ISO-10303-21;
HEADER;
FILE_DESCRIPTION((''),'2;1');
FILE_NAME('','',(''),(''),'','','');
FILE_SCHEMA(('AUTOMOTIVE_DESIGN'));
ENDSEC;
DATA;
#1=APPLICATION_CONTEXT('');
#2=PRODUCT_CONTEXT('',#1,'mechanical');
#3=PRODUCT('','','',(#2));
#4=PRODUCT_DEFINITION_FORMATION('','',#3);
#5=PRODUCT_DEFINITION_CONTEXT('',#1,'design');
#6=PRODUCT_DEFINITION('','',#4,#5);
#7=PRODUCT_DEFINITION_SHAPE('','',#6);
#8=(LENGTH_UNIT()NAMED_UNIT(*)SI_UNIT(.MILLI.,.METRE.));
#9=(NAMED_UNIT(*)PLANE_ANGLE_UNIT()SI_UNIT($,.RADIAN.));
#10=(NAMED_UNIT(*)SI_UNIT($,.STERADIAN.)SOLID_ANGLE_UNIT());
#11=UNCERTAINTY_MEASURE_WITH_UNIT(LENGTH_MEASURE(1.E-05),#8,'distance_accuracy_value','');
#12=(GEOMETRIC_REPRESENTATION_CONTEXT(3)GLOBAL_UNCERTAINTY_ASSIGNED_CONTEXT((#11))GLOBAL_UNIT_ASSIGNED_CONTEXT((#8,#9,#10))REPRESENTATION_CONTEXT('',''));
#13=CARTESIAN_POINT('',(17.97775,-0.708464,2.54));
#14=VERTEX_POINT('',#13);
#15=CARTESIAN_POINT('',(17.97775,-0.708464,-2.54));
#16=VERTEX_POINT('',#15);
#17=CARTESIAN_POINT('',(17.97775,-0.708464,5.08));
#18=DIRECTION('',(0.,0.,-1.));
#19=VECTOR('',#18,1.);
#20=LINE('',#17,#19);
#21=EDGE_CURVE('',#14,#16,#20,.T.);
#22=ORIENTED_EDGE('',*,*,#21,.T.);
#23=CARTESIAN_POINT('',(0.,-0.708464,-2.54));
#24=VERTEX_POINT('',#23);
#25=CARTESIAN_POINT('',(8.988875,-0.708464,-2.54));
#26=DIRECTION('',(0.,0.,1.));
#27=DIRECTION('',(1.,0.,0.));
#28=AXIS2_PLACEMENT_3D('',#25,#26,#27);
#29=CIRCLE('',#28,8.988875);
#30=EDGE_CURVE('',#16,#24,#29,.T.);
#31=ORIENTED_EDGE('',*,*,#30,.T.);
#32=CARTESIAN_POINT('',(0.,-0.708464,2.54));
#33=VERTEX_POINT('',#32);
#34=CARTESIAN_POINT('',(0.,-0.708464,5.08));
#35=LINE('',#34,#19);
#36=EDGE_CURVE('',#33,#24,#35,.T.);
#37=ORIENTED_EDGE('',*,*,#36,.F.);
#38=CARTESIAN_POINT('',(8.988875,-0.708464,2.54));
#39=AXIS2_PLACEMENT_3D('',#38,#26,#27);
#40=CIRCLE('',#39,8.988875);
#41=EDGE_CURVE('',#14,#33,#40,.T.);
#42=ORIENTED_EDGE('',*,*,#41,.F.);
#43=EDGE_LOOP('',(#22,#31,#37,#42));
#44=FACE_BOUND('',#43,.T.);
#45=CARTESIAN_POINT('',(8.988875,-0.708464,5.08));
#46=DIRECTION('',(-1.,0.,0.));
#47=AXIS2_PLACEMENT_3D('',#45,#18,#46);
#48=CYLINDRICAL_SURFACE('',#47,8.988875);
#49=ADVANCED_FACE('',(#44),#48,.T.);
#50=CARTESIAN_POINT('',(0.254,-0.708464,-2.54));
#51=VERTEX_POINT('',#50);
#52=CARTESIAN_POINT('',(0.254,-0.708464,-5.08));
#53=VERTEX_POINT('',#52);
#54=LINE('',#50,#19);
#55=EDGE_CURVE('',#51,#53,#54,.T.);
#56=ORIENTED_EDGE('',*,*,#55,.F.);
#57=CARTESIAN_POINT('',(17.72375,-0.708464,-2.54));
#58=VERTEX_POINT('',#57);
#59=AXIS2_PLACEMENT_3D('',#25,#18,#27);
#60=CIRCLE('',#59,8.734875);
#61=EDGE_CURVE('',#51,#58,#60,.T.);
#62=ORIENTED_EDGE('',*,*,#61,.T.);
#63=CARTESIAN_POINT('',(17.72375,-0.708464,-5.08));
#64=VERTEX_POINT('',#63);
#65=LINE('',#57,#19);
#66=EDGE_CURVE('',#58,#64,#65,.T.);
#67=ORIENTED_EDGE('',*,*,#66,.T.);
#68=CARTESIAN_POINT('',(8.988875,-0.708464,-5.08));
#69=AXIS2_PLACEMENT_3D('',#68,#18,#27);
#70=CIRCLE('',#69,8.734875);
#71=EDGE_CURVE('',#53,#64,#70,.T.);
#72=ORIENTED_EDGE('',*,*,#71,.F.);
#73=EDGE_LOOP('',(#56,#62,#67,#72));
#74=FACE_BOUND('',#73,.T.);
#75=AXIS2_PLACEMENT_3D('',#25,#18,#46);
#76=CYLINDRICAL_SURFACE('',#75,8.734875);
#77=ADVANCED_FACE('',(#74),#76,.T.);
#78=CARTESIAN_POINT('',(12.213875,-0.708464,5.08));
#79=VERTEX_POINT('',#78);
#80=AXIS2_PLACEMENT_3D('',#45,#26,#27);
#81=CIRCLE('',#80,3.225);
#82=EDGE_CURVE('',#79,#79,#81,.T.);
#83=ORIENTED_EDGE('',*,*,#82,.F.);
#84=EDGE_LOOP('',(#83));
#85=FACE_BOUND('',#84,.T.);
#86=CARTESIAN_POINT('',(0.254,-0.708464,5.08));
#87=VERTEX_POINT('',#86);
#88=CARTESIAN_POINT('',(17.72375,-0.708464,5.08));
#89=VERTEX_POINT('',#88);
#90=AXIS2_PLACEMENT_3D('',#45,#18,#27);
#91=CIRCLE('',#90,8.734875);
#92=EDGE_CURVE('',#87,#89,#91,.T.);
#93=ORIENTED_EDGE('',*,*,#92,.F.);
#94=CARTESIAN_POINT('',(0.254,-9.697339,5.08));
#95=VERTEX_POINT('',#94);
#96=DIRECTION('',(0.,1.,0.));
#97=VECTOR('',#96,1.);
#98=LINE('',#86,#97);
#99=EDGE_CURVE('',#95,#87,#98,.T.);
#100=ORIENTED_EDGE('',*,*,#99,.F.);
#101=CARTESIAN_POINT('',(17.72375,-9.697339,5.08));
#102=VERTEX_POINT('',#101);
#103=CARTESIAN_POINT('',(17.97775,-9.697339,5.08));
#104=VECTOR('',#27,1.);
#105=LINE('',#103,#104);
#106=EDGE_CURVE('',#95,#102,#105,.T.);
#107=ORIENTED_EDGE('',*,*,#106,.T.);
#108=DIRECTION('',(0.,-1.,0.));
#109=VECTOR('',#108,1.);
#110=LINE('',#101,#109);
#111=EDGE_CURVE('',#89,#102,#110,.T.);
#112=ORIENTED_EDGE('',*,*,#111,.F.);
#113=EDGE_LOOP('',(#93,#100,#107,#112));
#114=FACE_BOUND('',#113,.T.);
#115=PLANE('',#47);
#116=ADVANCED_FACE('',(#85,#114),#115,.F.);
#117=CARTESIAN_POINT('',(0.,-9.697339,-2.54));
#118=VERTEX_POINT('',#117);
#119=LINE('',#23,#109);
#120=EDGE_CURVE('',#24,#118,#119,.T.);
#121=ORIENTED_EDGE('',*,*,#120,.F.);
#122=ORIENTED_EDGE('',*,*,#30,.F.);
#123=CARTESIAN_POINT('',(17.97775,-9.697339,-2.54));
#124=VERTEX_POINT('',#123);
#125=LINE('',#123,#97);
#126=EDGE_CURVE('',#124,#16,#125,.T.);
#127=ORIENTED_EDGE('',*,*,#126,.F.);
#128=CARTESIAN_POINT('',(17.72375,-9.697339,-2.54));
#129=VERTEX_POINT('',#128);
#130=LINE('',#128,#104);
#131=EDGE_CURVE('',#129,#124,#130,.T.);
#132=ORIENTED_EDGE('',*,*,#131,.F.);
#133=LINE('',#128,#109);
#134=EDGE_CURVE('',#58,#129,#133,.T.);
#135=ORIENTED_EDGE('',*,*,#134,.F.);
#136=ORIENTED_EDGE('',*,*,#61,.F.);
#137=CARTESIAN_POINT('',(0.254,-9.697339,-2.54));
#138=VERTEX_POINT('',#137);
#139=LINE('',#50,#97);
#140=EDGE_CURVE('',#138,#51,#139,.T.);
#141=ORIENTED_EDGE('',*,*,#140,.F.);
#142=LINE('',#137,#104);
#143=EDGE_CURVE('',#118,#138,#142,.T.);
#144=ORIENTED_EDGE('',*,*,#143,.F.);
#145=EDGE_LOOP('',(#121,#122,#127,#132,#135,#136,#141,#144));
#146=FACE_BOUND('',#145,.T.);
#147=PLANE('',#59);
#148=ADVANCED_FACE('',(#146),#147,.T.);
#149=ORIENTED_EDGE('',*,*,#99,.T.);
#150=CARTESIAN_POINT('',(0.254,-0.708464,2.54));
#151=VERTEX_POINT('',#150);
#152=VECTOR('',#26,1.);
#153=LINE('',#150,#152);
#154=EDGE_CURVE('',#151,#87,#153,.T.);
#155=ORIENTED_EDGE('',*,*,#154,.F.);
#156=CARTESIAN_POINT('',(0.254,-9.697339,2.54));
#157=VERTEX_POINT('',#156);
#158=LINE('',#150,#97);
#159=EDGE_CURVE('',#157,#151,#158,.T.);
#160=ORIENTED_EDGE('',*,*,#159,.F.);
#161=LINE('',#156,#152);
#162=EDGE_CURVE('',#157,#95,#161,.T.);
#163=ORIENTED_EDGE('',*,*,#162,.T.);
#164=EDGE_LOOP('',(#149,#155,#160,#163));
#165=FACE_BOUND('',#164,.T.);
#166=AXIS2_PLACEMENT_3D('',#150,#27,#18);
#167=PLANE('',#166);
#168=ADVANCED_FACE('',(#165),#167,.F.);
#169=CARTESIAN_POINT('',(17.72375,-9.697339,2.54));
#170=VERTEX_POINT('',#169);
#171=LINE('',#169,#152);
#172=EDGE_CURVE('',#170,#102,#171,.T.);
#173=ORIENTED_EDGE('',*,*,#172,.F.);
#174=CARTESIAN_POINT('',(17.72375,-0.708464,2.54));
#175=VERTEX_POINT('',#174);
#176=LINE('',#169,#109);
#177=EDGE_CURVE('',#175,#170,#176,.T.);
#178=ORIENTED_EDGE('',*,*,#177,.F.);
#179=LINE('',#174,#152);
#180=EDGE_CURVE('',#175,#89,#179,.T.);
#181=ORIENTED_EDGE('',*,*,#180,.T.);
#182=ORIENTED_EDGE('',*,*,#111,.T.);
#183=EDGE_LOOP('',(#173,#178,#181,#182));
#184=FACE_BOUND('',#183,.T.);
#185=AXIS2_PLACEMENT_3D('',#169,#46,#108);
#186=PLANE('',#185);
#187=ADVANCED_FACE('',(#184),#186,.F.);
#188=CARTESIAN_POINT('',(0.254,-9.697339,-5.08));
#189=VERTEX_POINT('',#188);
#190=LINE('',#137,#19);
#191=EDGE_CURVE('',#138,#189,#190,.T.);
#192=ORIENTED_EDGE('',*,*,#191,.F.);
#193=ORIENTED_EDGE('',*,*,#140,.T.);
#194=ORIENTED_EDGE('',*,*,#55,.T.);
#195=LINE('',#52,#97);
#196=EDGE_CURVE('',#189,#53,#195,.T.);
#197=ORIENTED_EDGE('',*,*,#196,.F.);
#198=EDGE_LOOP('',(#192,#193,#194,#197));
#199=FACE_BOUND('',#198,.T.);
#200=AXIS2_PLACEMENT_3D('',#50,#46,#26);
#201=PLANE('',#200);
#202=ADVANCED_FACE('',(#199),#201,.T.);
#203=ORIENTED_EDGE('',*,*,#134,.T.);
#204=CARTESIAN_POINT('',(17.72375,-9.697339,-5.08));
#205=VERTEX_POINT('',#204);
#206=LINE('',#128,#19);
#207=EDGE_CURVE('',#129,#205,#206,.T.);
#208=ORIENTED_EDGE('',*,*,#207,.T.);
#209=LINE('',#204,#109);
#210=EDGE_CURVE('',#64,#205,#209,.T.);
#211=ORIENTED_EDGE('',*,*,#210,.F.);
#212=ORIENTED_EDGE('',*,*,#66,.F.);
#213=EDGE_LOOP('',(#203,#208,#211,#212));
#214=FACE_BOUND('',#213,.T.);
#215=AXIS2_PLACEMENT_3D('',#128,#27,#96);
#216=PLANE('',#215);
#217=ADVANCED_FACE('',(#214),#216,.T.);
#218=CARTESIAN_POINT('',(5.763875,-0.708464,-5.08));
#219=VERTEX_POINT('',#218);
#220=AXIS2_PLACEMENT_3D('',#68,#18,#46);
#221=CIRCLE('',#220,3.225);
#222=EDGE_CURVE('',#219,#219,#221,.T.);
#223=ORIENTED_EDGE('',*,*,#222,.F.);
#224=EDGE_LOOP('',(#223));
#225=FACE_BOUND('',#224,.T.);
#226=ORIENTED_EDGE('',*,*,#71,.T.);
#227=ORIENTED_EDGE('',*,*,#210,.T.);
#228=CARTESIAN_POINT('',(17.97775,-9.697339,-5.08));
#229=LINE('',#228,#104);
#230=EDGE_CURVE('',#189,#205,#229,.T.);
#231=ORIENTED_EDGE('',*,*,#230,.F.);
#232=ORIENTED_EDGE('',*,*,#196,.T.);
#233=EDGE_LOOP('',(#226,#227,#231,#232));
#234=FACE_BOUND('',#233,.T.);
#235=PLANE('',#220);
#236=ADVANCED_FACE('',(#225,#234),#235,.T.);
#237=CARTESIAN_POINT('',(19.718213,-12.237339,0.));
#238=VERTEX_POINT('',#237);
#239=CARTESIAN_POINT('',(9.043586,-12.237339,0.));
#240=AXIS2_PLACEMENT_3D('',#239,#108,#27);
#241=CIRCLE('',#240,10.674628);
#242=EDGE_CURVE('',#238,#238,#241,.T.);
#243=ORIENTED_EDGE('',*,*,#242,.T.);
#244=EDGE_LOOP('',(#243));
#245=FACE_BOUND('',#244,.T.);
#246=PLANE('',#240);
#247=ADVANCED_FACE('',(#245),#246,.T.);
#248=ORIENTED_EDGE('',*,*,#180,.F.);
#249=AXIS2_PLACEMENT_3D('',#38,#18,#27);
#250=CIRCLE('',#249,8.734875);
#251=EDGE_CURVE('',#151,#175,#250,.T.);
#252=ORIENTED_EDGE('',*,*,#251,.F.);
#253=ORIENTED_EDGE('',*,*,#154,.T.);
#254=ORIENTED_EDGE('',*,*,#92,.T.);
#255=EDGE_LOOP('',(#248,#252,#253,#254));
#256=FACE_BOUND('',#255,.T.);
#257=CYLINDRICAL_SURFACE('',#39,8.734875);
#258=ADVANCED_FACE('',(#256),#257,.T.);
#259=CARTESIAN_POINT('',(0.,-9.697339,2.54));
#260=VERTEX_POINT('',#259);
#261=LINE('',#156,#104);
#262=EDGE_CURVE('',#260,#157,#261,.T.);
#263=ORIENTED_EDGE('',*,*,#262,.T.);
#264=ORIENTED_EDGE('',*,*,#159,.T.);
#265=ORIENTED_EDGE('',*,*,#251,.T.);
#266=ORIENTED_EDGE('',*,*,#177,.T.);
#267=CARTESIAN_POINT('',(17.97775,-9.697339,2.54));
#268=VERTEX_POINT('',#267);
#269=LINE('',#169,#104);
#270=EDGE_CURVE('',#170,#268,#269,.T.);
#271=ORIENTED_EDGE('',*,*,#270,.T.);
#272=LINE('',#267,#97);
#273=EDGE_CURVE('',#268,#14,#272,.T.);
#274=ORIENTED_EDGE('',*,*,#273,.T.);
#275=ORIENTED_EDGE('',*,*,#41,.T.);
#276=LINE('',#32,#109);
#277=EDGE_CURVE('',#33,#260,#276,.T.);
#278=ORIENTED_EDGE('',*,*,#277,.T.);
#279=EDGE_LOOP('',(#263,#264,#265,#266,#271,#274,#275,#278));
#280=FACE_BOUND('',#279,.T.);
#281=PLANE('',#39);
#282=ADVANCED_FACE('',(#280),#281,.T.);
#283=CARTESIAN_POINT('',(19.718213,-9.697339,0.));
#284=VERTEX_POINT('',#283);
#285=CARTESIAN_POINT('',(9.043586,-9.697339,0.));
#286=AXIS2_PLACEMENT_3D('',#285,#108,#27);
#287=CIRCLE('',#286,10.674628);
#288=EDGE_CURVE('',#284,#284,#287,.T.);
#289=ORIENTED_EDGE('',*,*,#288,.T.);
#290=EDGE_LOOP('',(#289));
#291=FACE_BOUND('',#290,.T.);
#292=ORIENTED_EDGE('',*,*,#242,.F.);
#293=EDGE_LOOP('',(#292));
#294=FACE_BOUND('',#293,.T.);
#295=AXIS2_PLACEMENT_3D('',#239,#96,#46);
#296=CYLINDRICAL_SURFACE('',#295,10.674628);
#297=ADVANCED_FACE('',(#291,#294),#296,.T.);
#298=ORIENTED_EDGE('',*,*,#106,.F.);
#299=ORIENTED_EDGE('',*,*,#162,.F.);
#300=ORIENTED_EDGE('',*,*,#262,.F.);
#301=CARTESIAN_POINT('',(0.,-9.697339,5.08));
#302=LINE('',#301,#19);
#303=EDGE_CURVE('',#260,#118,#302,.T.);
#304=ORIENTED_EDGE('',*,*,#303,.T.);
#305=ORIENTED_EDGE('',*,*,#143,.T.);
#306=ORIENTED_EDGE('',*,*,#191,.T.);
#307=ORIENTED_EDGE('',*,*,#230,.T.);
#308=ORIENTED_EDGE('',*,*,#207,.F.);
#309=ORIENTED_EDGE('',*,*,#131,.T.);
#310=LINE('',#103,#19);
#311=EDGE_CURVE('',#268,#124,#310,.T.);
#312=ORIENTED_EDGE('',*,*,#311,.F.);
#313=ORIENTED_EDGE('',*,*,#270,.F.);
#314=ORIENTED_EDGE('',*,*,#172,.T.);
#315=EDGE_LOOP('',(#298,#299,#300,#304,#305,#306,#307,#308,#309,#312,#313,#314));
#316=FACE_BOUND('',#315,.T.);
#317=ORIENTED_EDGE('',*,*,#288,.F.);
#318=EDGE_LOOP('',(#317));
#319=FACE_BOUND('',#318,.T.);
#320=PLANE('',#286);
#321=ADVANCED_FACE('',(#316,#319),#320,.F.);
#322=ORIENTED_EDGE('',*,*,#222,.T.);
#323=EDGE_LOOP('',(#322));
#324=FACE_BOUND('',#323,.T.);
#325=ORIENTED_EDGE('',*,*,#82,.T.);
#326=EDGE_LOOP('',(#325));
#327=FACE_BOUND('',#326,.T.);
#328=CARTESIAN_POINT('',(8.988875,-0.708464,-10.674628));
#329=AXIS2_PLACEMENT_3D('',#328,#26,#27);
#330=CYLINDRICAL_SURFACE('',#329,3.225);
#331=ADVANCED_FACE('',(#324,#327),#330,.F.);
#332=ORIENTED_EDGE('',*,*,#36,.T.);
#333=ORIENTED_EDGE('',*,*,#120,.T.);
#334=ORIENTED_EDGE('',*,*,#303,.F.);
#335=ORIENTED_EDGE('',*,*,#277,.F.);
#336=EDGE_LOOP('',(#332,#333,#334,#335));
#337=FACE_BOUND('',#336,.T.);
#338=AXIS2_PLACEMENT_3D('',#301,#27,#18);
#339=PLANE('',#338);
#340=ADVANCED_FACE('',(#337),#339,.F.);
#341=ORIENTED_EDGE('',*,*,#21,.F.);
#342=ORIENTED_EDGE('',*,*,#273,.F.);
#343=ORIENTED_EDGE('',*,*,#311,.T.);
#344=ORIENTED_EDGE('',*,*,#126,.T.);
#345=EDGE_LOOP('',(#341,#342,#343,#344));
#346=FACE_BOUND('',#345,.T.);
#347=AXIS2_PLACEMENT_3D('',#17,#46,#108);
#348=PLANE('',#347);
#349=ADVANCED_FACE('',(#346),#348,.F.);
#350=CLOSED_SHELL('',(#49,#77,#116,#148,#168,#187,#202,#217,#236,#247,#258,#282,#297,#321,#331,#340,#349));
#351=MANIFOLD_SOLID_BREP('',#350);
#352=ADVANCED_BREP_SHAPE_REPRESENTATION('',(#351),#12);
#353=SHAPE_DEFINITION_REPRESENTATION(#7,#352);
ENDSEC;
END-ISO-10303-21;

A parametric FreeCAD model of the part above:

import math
import FreeCAD as App
import Part
import Sketcher
from FreeCAD import Vector
Q = App.Units.Quantity

doc = App.newDocument("Part")
params = doc.addObject("Spreadsheet::Sheet", "Params")
for row, (alias, value) in enumerate([
    ("pad1_length", "0.4 in"),
    ("pad2_length", "0.1 in"),
    ("sketch4_width", "0.01 in"),
    ("pocket2_length", "0.1 in"),
], start=1):
    params.set(f"A{row}", alias)
    params.set(f"B{row}", "=" + value)
    params.setAlias(f"B{row}", alias)

body = doc.addObject("PartDesign::Body", "Body")

# Sketch on XY plane
sketch1 = body.newObject("Sketcher::SketchObject", "Sketch")
sketch1.AttachmentSupport = (doc.getObject("XY_Plane"), [""])
sketch1.MapMode = "FlatFace"
sketch1.addGeometry([
    Part.LineSegment(Vector(0, -10, 0), Vector(18, -10, 0)),
    Part.LineSegment(Vector(18, -10, 0), Vector(18, -1, 0)),
    Part.ArcOfCircle(Part.Circle(Vector(9, -1, 0), Vector(0, 0, 1), 9), math.radians(0), math.radians(180)),
    Part.LineSegment(Vector(0, -1, 0), Vector(0, -10, 0)),
], False)
sketch1.addConstraint([
    Sketcher.Constraint("Coincident", 0, 2, 1, 1),
    Sketcher.Constraint("Tangent", 1, 2, 2, 1),
    Sketcher.Constraint("Tangent", 2, 2, 3, 1),
    Sketcher.Constraint("Coincident", 3, 2, 0, 1),
    Sketcher.Constraint("Horizontal", 0),
    Sketcher.Constraint("Vertical", 1),
    Sketcher.Constraint("Vertical", 3),
    Sketcher.Constraint("PointOnObject", 2, 2, -2),
    Sketcher.Constraint("Radius", 2, Q("8.988875 mm")),
    Sketcher.Constraint("DistanceY", 1, 1, 1, 2, Q("8.988875 mm")),
    Sketcher.Constraint("DistanceY", 0, 2, -1, 1, Q("9.697339 mm")),
])
pad1 = body.newObject("PartDesign::Pad", "Pad")
pad1.Profile = sketch1
pad1.setExpression("Length", "Params.pad1_length")
pad1.Midplane = True

# Sketch on XZ plane
sketch2 = body.newObject("Sketcher::SketchObject", "Sketch001")
sketch2.AttachmentSupport = (doc.getObject("XZ_Plane"), [""])
sketch2.MapMode = "FlatFace"
sketch2.AttachmentOffset = App.Placement(Vector(0, 0, 9.697339), App.Rotation())
sketch2.addGeometry(Part.Circle(Vector(9, 0, 0), Vector(0, 0, 1), 11), False)
sketch2.addConstraint([
    Sketcher.Constraint("PointOnObject", 0, 3, -1),
    Sketcher.Constraint("Diameter", 0, Q("21.349255 mm")),
    Sketcher.Constraint("DistanceX", -1, 1, 0, 3, Q("9.043586 mm")),
])
pad2 = body.newObject("PartDesign::Pad", "Pad001")
pad2.Profile = sketch2
pad2.setExpression("Length", "Params.pad2_length")

# Sketch on XY plane
sketch3 = body.newObject("Sketcher::SketchObject", "Sketch002")
sketch3.AttachmentSupport = (doc.getObject("XY_Plane"), [""])
sketch3.MapMode = "FlatFace"
sketch3.AttachmentOffset = App.Placement(Vector(0, 0, 0.2 * 25.4), App.Rotation())
sketch3.addGeometry(Part.Circle(Vector(9, -0.7, 0), Vector(0, 0, 1), 3.2), False)
sketch3.addConstraint([
    Sketcher.Constraint("Diameter", 0, Q("6.45 mm")),
    Sketcher.Constraint("DistanceX", -1, 1, 0, 3, Q("8.988875 mm")),
    Sketcher.Constraint("DistanceY", 0, 3, -1, 1, Q("0.708464 mm")),
])
pocket1 = body.newObject("PartDesign::Pocket", "Pocket")
pocket1.Profile = sketch3
pocket1.Type = "ThroughAll"

# Sketch on XY plane
sketch4 = body.newObject("Sketcher::SketchObject", "Sketch003")
sketch4.AttachmentSupport = (doc.getObject("XY_Plane"), [""])
sketch4.MapMode = "FlatFace"
sketch4.AttachmentOffset = App.Placement(Vector(0, 0, 0.2 * 25.4), App.Rotation())
sketch4.addGeometry([
    Part.LineSegment(Vector(0, -9.7, 0), Vector(0.25, -9.7, 0)),  # 0
    Part.LineSegment(Vector(0.25, -9.7, 0), Vector(0.25, -0.71, 0)),  # 1
    Part.ArcOfCircle(Part.Circle(Vector(8.99, -0.71, 0), Vector(0, 0, 1), 8.73), math.radians(0), math.radians(180)),  # 2
    Part.LineSegment(Vector(17.72, -0.71, 0), Vector(17.72, -9.7, 0)),  # 3
    Part.LineSegment(Vector(17.72, -9.7, 0), Vector(17.98, -9.7, 0)),  # 4
    Part.LineSegment(Vector(17.98, -9.7, 0), Vector(17.98, -0.71, 0)),  # 5
    Part.ArcOfCircle(Part.Circle(Vector(8.99, -0.71, 0), Vector(0, 0, 1), 8.99), math.radians(0), math.radians(180)),  # 6
    Part.LineSegment(Vector(0, -0.71, 0), Vector(0, -9.7, 0)),  # 7
], False)
sketch4.addConstraint([
    Sketcher.Constraint("Coincident", 0, 2, 1, 1),
    Sketcher.Constraint("Tangent", 1, 2, 2, 2),
    Sketcher.Constraint("Tangent", 2, 1, 3, 1),
    Sketcher.Constraint("Coincident", 3, 2, 4, 1),
    Sketcher.Constraint("Coincident", 4, 2, 5, 1),
    Sketcher.Constraint("Tangent", 5, 2, 6, 1),
    Sketcher.Constraint("Tangent", 6, 2, 7, 1),
    Sketcher.Constraint("Coincident", 7, 2, 0, 1),
    Sketcher.Constraint("Horizontal", 0),
    Sketcher.Constraint("Vertical", 1),
    Sketcher.Constraint("Vertical", 3),
    Sketcher.Constraint("Horizontal", 4),
    Sketcher.Constraint("Vertical", 5),
    Sketcher.Constraint("Vertical", 7),
    Sketcher.Constraint("Coincident", 6, 3, 2, 3),
    Sketcher.Constraint("PointOnObject", 6, 2, -2),
    Sketcher.Constraint("Horizontal", 0, 2, 3, 2),
    Sketcher.Constraint("DistanceX", 0, 1, 0, 2, Q("0.01 in")),
    Sketcher.Constraint("Radius", 2, Q("8.734875 mm")),
    Sketcher.Constraint("DistanceY", 1, 1, 1, 2, Q("8.988875 mm")),
    Sketcher.Constraint("DistanceY", 0, 2, -1, 1, Q("9.697339 mm")),
])
sketch4.setExpression("Constraints[17]", "Params.sketch4_width")
pocket2 = body.newObject("PartDesign::Pocket", "Pocket001")
pocket2.Profile = sketch4
pocket2.setExpression("Length", "Params.pocket2_length")
doc.recompute()

mirrored = body.newObject("PartDesign::Mirrored", "Mirrored")
mirrored.Originals = [pocket2]
mirrored.MirrorPlane = (doc.getObject("XY_Plane"), [""])
body.Tip = mirrored

doc.recompute()
